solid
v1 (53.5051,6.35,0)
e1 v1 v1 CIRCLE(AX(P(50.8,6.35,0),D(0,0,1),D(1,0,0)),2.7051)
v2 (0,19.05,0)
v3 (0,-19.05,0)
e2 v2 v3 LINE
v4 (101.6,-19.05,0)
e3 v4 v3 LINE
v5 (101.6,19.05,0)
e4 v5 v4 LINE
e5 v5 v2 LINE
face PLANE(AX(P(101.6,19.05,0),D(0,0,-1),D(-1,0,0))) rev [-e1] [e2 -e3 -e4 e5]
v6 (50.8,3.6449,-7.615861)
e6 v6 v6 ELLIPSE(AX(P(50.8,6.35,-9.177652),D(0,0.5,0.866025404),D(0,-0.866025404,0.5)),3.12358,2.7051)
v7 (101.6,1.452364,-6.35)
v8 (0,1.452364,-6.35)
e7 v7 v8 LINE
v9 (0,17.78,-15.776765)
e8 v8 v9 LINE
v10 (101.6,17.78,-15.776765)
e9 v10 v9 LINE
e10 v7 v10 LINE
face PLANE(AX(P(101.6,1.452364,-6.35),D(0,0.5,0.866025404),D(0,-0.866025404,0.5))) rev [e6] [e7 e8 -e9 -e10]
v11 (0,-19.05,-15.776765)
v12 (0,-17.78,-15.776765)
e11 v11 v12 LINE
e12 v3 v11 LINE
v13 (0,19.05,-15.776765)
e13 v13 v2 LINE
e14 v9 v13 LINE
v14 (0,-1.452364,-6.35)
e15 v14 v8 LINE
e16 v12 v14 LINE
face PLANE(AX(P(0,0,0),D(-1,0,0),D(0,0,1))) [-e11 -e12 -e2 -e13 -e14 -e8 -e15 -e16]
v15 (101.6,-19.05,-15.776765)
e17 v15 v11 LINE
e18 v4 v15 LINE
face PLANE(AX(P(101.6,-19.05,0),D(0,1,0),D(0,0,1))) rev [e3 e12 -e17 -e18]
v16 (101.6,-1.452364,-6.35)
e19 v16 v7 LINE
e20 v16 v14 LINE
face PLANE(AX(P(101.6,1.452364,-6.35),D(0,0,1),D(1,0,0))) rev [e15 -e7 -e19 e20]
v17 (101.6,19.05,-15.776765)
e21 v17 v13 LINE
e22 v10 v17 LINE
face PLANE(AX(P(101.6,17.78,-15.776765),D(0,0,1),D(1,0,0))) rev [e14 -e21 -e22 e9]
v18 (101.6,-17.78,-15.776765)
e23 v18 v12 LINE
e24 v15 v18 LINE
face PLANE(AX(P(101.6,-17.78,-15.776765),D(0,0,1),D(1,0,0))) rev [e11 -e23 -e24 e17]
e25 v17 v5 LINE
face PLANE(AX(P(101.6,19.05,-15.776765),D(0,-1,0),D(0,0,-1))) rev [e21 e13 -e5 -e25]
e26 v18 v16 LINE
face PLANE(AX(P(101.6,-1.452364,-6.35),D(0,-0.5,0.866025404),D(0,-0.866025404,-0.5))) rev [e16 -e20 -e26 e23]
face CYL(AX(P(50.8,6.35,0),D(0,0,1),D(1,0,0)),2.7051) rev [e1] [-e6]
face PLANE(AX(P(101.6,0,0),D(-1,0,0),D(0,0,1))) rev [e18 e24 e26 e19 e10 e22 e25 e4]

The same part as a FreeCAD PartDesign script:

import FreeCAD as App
import Part
import Sketcher
from FreeCAD import Vector
Q = App.Units.Quantity


def add_polygon(sketch, points):
    """Adds a closed chain of lines whose ends are joined by coincident constraints."""
    first, n = sketch.GeometryCount, len(points)
    for a, b in zip(points, points[1:] + points[:1]):
        sketch.addGeometry(Part.LineSegment(App.Vector(*a, 0), App.Vector(*b, 0)), False)
    for i in range(n):
        sketch.addConstraint(Sketcher.Constraint("Coincident", first + i, 2, first + (i + 1) % n, 1))

doc = App.newDocument("Part")
body = doc.addObject("PartDesign::Body", "Body")

# Sketch on YZ plane
sketch1 = doc.addObject("Sketcher::SketchObject", "Sketch")
body.addObject(sketch1)
sketch1.AttachmentSupport = (doc.YZ_Plane, [""])
sketch1.MapMode = "FlatFace"
add_polygon(sketch1, [(19.05, 0), (-19.05, 0), (-19.05, -15.776765), (-17.78, -15.776765), (-1.452364, -6.35), (1.452364, -6.35), (17.78, -15.776765), (19.05, -15.776765)])  # lines 0-7
sketch1.addConstraint([
    Sketcher.Constraint("Horizontal", 0),
    Sketcher.Constraint("Vertical", 1),
    Sketcher.Constraint("Horizontal", 2),
    Sketcher.Constraint("Horizontal", 4),
    Sketcher.Constraint("Horizontal", 6),
    Sketcher.Constraint("Vertical", 7),
    Sketcher.Constraint("Symmetric", 0, 2, 7, 2, -1, 1),
    Sketcher.Constraint("Symmetric", 2, 2, 5, 2, -2),
    Sketcher.Constraint("Equal", 3, 5),
    Sketcher.Constraint("DistanceX", 0, 2, 0, 1, Q("1.5 in")),
    Sketcher.Constraint("Angle", 3, Q("30 deg")),
    Sketcher.Constraint("DistanceX", 2, 1, 2, 2, Q("0.05 in")),
    Sketcher.Constraint("DistanceY", 3, 2, -1, 1, Q("0.25 in")),
    Sketcher.Constraint("Distance", 3, Q("18.85353 mm")),
])
pad1 = doc.addObject("PartDesign::Pad", "Pad")
body.addObject(pad1)
pad1.Profile = sketch1
pad1.Length = Q("4 in")

# Sketch on XY plane
sketch2 = doc.addObject("Sketcher::SketchObject", "Sketch001")
body.addObject(sketch2)
sketch2.AttachmentSupport = (doc.XY_Plane, [""])
sketch2.MapMode = "FlatFace"
sketch2.addGeometry(Part.Circle(Vector(50.8, 6.35, 0), Vector(0, 0, 1), 2.7051), False)
sketch2.addConstraint([
    Sketcher.Constraint("Diameter", 0, Q("0.213 in")),
    Sketcher.Constraint("DistanceX", -1, 1, 0, 3, Q("2 in")),
    Sketcher.Constraint("DistanceY", -1, 1, 0, 3, Q("0.25 in")),
])
doc.recompute()
hole = doc.addObject("PartDesign::Hole", "Hole")
body.addObject(hole)
hole.Profile = sketch2
hole.ThreadType = "None"
hole.Diameter = Q("0.213 in")
hole.DepthType = "ThroughAll"

doc.recompute()
